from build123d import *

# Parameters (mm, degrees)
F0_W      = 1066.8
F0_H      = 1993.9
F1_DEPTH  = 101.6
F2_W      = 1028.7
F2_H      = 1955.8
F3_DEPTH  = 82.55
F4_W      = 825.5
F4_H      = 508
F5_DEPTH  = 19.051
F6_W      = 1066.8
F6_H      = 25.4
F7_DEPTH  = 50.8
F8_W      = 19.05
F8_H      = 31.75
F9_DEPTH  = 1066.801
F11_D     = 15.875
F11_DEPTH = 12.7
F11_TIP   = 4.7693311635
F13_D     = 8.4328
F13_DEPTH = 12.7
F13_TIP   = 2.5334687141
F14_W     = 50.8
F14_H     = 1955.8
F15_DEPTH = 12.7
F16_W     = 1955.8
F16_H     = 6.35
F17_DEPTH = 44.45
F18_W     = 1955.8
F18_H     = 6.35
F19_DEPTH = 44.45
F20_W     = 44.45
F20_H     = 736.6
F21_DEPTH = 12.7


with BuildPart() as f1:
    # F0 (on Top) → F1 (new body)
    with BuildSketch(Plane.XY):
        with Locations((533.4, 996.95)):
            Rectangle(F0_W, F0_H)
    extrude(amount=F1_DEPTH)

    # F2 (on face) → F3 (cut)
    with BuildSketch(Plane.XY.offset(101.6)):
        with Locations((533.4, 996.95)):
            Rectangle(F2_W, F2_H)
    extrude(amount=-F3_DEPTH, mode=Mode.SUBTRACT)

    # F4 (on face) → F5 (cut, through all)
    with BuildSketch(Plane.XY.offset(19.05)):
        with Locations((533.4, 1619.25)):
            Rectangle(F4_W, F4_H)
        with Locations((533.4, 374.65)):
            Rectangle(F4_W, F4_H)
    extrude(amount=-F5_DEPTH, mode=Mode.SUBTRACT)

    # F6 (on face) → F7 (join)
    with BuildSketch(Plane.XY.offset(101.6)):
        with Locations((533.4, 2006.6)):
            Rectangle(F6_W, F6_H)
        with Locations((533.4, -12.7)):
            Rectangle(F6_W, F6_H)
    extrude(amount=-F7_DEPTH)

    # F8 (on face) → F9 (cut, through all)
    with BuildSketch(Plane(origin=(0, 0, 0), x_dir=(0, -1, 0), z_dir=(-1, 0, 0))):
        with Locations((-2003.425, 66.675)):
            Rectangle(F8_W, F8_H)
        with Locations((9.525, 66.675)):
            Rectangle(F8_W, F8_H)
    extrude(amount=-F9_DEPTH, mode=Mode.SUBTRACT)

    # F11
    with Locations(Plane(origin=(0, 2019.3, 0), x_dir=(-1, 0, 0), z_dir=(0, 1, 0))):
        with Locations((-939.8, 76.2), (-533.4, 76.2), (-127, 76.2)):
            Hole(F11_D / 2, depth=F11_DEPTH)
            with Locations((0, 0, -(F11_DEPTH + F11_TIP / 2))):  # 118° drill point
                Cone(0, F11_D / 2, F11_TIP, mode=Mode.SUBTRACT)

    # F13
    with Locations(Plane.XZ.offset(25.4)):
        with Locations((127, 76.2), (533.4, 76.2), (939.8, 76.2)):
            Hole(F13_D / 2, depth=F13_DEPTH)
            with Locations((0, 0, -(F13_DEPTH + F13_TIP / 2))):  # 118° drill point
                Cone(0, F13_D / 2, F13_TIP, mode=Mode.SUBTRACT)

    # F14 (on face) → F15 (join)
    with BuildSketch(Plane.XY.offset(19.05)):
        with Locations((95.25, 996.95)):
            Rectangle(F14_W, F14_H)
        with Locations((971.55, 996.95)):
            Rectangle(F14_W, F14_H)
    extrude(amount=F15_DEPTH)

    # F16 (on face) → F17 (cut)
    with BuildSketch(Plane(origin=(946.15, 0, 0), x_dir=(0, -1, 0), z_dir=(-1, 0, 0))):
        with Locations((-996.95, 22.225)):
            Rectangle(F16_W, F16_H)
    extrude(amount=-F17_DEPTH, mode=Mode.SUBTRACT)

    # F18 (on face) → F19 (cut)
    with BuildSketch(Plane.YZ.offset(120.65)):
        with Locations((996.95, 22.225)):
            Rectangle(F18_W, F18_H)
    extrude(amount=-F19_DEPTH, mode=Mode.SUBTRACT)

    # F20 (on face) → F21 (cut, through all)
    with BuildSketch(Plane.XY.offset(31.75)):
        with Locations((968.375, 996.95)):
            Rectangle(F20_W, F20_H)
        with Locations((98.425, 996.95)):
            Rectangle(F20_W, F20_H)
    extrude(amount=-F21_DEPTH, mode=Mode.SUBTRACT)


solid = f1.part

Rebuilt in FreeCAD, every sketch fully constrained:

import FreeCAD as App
import Part
import Sketcher
from FreeCAD import Vector
Q = App.Units.Quantity


def add_polygon(sketch, points):
    """Adds a closed chain of lines whose ends are joined by coincident constraints."""
    first, n = sketch.GeometryCount, len(points)
    for a, b in zip(points, points[1:] + points[:1]):
        sketch.addGeometry(Part.LineSegment(App.Vector(*a, 0), App.Vector(*b, 0)), False)
    for i in range(n):
        sketch.addConstraint(Sketcher.Constraint("Coincident", first + i, 2, first + (i + 1) % n, 1))

doc = App.newDocument("Part")
params = doc.addObject("Spreadsheet::Sheet", "Params")
for row, (alias, value) in enumerate([
    ("sketch1_width", "42 in"),
    ("sketch1_height", "78.5 in"),
    ("pad1_length", "4 in"),
    ("sketch2_height", "77 in"),
    ("sketch2_width", "40.5 in"),
    ("pocket1_length", "3.25 in"),
    ("sketch3_height", "20 in"),
    ("sketch3_width", "32.5 in"),
    ("sketch4_width", "42 in"),
    ("sketch4_height", "1 in"),
    ("pad2_length", "2 in"),
    ("sketch5_width", "0.75 in"),
    ("sketch5_height", "1.25 in"),
    ("sketch6_diameter", "0.625 in"),
    ("hole_diameter", "0.625 in"),
    ("hole_depth", "0.5 in"),
    ("sketch7_diameter", "0.332 in"),
    ("hole2_diameter", "0.332 in"),
    ("hole2_depth", "0.5 in"),
    ("sketch8_width", "2 in"),
    ("sketch8_height", "77 in"),
    ("pad3_length", "0.5 in"),
    ("sketch9_width", "77 in"),
    ("sketch9_height", "0.25 in"),
    ("pocket4_length", "1.75 in"),
    ("sketch10_width", "77 in"),
    ("sketch10_height", "0.25 in"),
    ("pocket5_length", "1.75 in"),
    ("sketch11_height", "29 in"),
    ("sketch11_width", "1.75 in"),
    ("pocket6_length", "0.5 in"),
], start=1):
    params.set(f"A{row}", alias)
    params.set(f"B{row}", "=" + value)
    params.setAlias(f"B{row}", alias)

body = doc.addObject("PartDesign::Body", "Body")

# Sketch on XY plane
sketch1 = body.newObject("Sketcher::SketchObject", "Sketch")
sketch1.AttachmentSupport = (doc.getObject("XY_Plane"), [""])
sketch1.MapMode = "FlatFace"
add_polygon(sketch1, [(0, 1994), (0, 0), (1067, 0), (1067, 1994)])  # lines 0-3
sketch1.addConstraint([
    Sketcher.Constraint("Vertical", 0),
    Sketcher.Constraint("Horizontal", 1),
    Sketcher.Constraint("Vertical", 2),
    Sketcher.Constraint("Horizontal", 3),
    Sketcher.Constraint("Coincident", 0, 2, -1, 1),
    Sketcher.Constraint("DistanceX", 1, 1, 1, 2, Q("42 in")),
    Sketcher.Constraint("DistanceY", 0, 2, 0, 1, Q("78.5 in")),
])
sketch1.setExpression("Constraints[9]", "Params.sketch1_width")
sketch1.setExpression("Constraints[10]", "Params.sketch1_height")
pad1 = body.newObject("PartDesign::Pad", "Pad")
pad1.Profile = sketch1
pad1.setExpression("Length", "Params.pad1_length")

# Sketch on XY plane
sketch2 = body.newObject("Sketcher::SketchObject", "Sketch001")
sketch2.AttachmentSupport = (doc.getObject("XY_Plane"), [""])
sketch2.MapMode = "FlatFace"
sketch2.AttachmentOffset = App.Placement(Vector(0, 0, 4 * 25.4), App.Rotation())
add_polygon(sketch2, [(19, 1975), (19, 19), (1048, 19), (1048, 1975)])  # lines 0-3
sketch2.addConstraint([
    Sketcher.Constraint("Vertical", 0),
    Sketcher.Constraint("Horizontal", 1),
    Sketcher.Constraint("Vertical", 2),
    Sketcher.Constraint("Horizontal", 3),
    Sketcher.Constraint("DistanceY", 0, 2, 0, 1, Q("77 in")),
    Sketcher.Constraint("DistanceX", 1, 1, 1, 2, Q("40.5 in")),
    Sketcher.Constraint("DistanceX", -1, 1, 0, 2, Q("0.75 in")),
    Sketcher.Constraint("DistanceY", -1, 1, 0, 2, Q("0.75 in")),
])
sketch2.setExpression("Constraints[8]", "Params.sketch2_height")
sketch2.setExpression("Constraints[9]", "Params.sketch2_width")
pocket1 = body.newObject("PartDesign::Pocket", "Pocket")
pocket1.Profile = sketch2
pocket1.setExpression("Length", "Params.pocket1_length")

# Sketch on XY plane
sketch3 = body.newObject("Sketcher::SketchObject", "Sketch002")
sketch3.AttachmentSupport = (doc.getObject("XY_Plane"), [""])
sketch3.MapMode = "FlatFace"
sketch3.AttachmentOffset = App.Placement(Vector(0, 0, 0.75 * 25.4), App.Rotation())
add_polygon(sketch3, [(121, 1873), (121, 1365), (946, 1365), (946, 1873)])  # lines 0-3
add_polygon(sketch3, [(121, 629), (121, 121), (946, 121), (946, 629)])  # lines 4-7
sketch3.addConstraint([
    Sketcher.Constraint("Vertical", 0),
    Sketcher.Constraint("Horizontal", 1),
    Sketcher.Constraint("Vertical", 2),
    Sketcher.Constraint("Horizontal", 3),
    Sketcher.Constraint("Vertical", 4),
    Sketcher.Constraint("Horizontal", 5),
    Sketcher.Constraint("Vertical", 6),
    Sketcher.Constraint("Horizontal", 7),
    Sketcher.Constraint("Vertical", 3, 2, 4, 2),
    Sketcher.Constraint("Vertical", 2, 2, 5, 2),
    Sketcher.Constraint("Equal", 2, 4),
    Sketcher.Constraint("DistanceY", 0, 2, 0, 1, Q("20 in")),
    Sketcher.Constraint("DistanceX", 1, 1, 1, 2, Q("32.5 in")),
    Sketcher.Constraint("DistanceY", 4, 2, 0, 2, Q("49 in")),
    Sketcher.Constraint("DistanceX", -1, 1, 0, 2, Q("4.75 in")),
    Sketcher.Constraint("DistanceY", -1, 1, 0, 2, Q("53.75 in")),
])
sketch3.setExpression("Constraints[19]", "Params.sketch3_height")
sketch3.setExpression("Constraints[20]", "Params.sketch3_width")
pocket2 = body.newObject("PartDesign::Pocket", "Pocket001")
pocket2.Profile = sketch3
pocket2.Type = "ThroughAll"

# Sketch on XY plane
sketch4 = body.newObject("Sketcher::SketchObject", "Sketch003")
sketch4.AttachmentSupport = (doc.getObject("XY_Plane"), [""])
sketch4.MapMode = "FlatFace"
sketch4.AttachmentOffset = App.Placement(Vector(0, 0, 4 * 25.4), App.Rotation())
add_polygon(sketch4, [(0, 2019), (0, 1994), (1067, 1994), (1067, 2019)])  # lines 0-3
add_polygon(sketch4, [(0, 0), (0, -25), (1067, -25), (1067, 0)])  # lines 4-7
sketch4.addConstraint([
    Sketcher.Constraint("Vertical", 0),
    Sketcher.Constraint("Horizontal", 1),
    Sketcher.Constraint("Vertical", 2),
    Sketcher.Constraint("Horizontal", 3),
    Sketcher.Constraint("Vertical", 4),
    Sketcher.Constraint("Horizontal", 5),
    Sketcher.Constraint("Vertical", 6),
    Sketcher.Constraint("Horizontal", 7),
    Sketcher.Constraint("Coincident", 7, 2, -1, 1),
    Sketcher.Constraint("PointOnObject", 0, 2, -2),
    Sketcher.Constraint("Vertical", 2, 2, 5, 2),
    Sketcher.Constraint("Equal", 2, 4),
    Sketcher.Constraint("DistanceX", 1, 1, 1, 2, Q("42 in")),
    Sketcher.Constraint("DistanceY", 0, 2, 0, 1, Q("1 in")),
    Sketcher.Constraint("DistanceY", -1, 1, 0, 2, Q("78.5 in")),
])
sketch4.setExpression("Constraints[20]", "Params.sketch4_width")
sketch4.setExpression("Constraints[21]", "Params.sketch4_height")
pad2 = body.newObject("PartDesign::Pad", "Pad001")
pad2.Profile = sketch4
pad2.setExpression("Length", "Params.pad2_length")
pad2.Reversed = True

# Sketch on YZ plane
sketch5 = body.newObject("Sketcher::SketchObject", "Sketch004")
sketch5.AttachmentSupport = (doc.getObject("YZ_Plane"), [""])
sketch5.MapMode = "FlatFace"
add_polygon(sketch5, [(2013, 83), (2013, 51), (1994, 51), (1994, 83)])  # lines 0-3
add_polygon(sketch5, [(0, 83), (0, 51), (-19, 51), (-19, 83)])  # lines 4-7
sketch5.addConstraint([
    Sketcher.Constraint("Vertical", 0),
    Sketcher.Constraint("Horizontal", 1),
    Sketcher.Constraint("Vertical", 2),
    Sketcher.Constraint("Horizontal", 3),
    Sketcher.Constraint("Vertical", 4),
    Sketcher.Constraint("Horizontal", 5),
    Sketcher.Constraint("Vertical", 6),
    Sketcher.Constraint("Horizontal", 7),
    Sketcher.Constraint("PointOnObject", 4, 2, -2),
    Sketcher.Constraint("Horizontal", 1, 2, 4, 2),
    Sketcher.Constraint("Horizontal", 3, 2, 6, 2),
    Sketcher.Constraint("Equal", 3, 5),
    Sketcher.Constraint("DistanceY", -1, 1, 0, 2, Q("2 in")),
    Sketcher.Constraint("DistanceX", 5, 2, 0, 2, Q("80 in")),
    Sketcher.Constraint("DistanceX", 1, 2, 1, 1, Q("0.75 in")),
    Sketcher.Constraint("DistanceY", 0, 2, 0, 1, Q("1.25 in")),
])
sketch5.setExpression("Constraints[22]", "Params.sketch5_width")
sketch5.setExpression("Constraints[23]", "Params.sketch5_height")
pocket3 = body.newObject("PartDesign::Pocket", "Pocket002")
pocket3.Profile = sketch5
pocket3.Type = "ThroughAll"
pocket3.Reversed = True

# Sketch on XZ plane
sketch6 = body.newObject("Sketcher::SketchObject", "Sketch005")
sketch6.AttachmentSupport = (doc.getObject("XZ_Plane"), [""])
sketch6.MapMode = "FlatFace"
sketch6.AttachmentOffset = App.Placement(Vector(0, 0, -79.5 * 25.4), App.Rotation())
sketch6.addGeometry([
    Part.Circle(Vector(940, 76, 0), Vector(0, 0, 1), 8),
    Part.Circle(Vector(533, 76, 0), Vector(0, 0, 1), 8),
    Part.Circle(Vector(127, 76, 0), Vector(0, 0, 1), 8),
], False)
sketch6.addConstraint([
    Sketcher.Constraint("Equal", 0, 1),
    Sketcher.Constraint("Equal", 1, 2),
    Sketcher.Constraint("Horizontal", 0, 3, 1, 3),
    Sketcher.Constraint("Horizontal", 1, 3, 2, 3),
    Sketcher.Constraint("Diameter", 0, Q("0.625 in")),
    Sketcher.Constraint("DistanceX", -1, 1, 0, 3, Q("37 in")),
    Sketcher.Constraint("DistanceY", -1, 1, 0, 3, Q("3 in")),
    Sketcher.Constraint("DistanceX", -1, 1, 1, 3, Q("21 in")),
    Sketcher.Constraint("DistanceX", -1, 1, 2, 3, Q("5 in")),
])
sketch6.setExpression("Constraints[4]", "Params.sketch6_diameter")
doc.recompute()
hole = body.newObject("PartDesign::Hole", "Hole")
hole.Profile = sketch6
hole.ThreadType = "None"
hole.setExpression("Diameter", "Params.hole_diameter")
hole.DepthType = "Dimension"
hole.setExpression("Depth", "Params.hole_depth")
hole.DrillPoint = "Angled"
hole.DrillPointAngle = 118
hole.Reversed = True

# Sketch on XZ plane
sketch7 = body.newObject("Sketcher::SketchObject", "Sketch006")
sketch7.AttachmentSupport = (doc.getObject("XZ_Plane"), [""])
sketch7.MapMode = "FlatFace"
sketch7.AttachmentOffset = App.Placement(Vector(0, 0, 1 * 25.4), App.Rotation())
sketch7.addGeometry([
    Part.Circle(Vector(127, 76.2, 0), Vector(0, 0, 1), 4.2),
    Part.Circle(Vector(533.4, 76.2, 0), Vector(0, 0, 1), 4.2),
    Part.Circle(Vector(939.8, 76.2, 0), Vector(0, 0, 1), 4.2),
], False)
sketch7.addConstraint([
    Sketcher.Constraint("Equal", 0, 1),
    Sketcher.Constraint("Equal", 1, 2),
    Sketcher.Constraint("Horizontal", 0, 3, 1, 3),
    Sketcher.Constraint("Horizontal", 1, 3, 2, 3),
    Sketcher.Constraint("Diameter", 0, Q("0.332 in")),
    Sketcher.Constraint("DistanceX", -1, 1, 0, 3, Q("5 in")),
    Sketcher.Constraint("DistanceY", -1, 1, 0, 3, Q("3 in")),
    Sketcher.Constraint("DistanceX", -1, 1, 1, 3, Q("21 in")),
    Sketcher.Constraint("DistanceX", -1, 1, 2, 3, Q("37 in")),
])
sketch7.setExpression("Constraints[4]", "Params.sketch7_diameter")
doc.recompute()
hole2 = body.newObject("PartDesign::Hole", "Hole001")
hole2.Profile = sketch7
hole2.ThreadType = "None"
hole2.setExpression("Diameter", "Params.hole2_diameter")
hole2.DepthType = "Dimension"
hole2.setExpression("Depth", "Params.hole2_depth")
hole2.DrillPoint = "Angled"
hole2.DrillPointAngle = 118

# Sketch on XY plane
sketch8 = body.newObject("Sketcher::SketchObject", "Sketch007")
sketch8.AttachmentSupport = (doc.getObject("XY_Plane"), [""])
sketch8.MapMode = "FlatFace"
sketch8.AttachmentOffset = App.Placement(Vector(0, 0, 0.75 * 25.4), App.Rotation())
add_polygon(sketch8, [(70, 1975), (70, 19), (121, 19), (121, 1975)])  # lines 0-3
add_polygon(sketch8, [(946, 1975), (946, 19), (997, 19), (997, 1975)])  # lines 4-7
sketch8.addConstraint([
    Sketcher.Constraint("Vertical", 0),
    Sketcher.Constraint("Horizontal", 1),
    Sketcher.Constraint("Vertical", 2),
    Sketcher.Constraint("Horizontal", 3),
    Sketcher.Constraint("Vertical", 4),
    Sketcher.Constraint("Horizontal", 5),
    Sketcher.Constraint("Vertical", 6),
    Sketcher.Constraint("Horizontal", 7),
    Sketcher.Constraint("Horizontal", 1, 2, 4, 2),
    Sketcher.Constraint("Horizontal", 3, 2, 6, 2),
    Sketcher.Constraint("Equal", 3, 5),
    Sketcher.Constraint("DistanceX", 1, 1, 1, 2, Q("2 in")),
    Sketcher.Constraint("DistanceY", 0, 2, 0, 1, Q("77 in")),
    Sketcher.Constraint("DistanceX", 1, 2, 4, 2, Q("32.5 in")),
    Sketcher.Constraint("DistanceX", -1, 1, 0, 2, Q("2.75 in")),
    Sketcher.Constraint("DistanceY", -1, 1, 0, 2, Q("0.75 in")),
])
sketch8.setExpression("Constraints[19]", "Params.sketch8_width")
sketch8.setExpression("Constraints[20]", "Params.sketch8_height")
pad3 = body.newObject("PartDesign::Pad", "Pad002")
pad3.Profile = sketch8
pad3.setExpression("Length", "Params.pad3_length")

# Sketch on YZ plane
sketch9 = body.newObject("Sketcher::SketchObject", "Sketch008")
sketch9.AttachmentSupport = (doc.getObject("YZ_Plane"), [""])
sketch9.MapMode = "FlatFace"
sketch9.AttachmentOffset = App.Placement(Vector(0, 0, 37.25 * 25.4), App.Rotation())
add_polygon(sketch9, [(1975, 25), (1975, 19), (19, 19), (19, 25)])  # lines 0-3
sketch9.addConstraint([
    Sketcher.Constraint("Vertical", 0),
    Sketcher.Constraint("Horizontal", 1),
    Sketcher.Constraint("Vertical", 2),
    Sketcher.Constraint("Horizontal", 3),
    Sketcher.Constraint("DistanceX", 1, 2, 1, 1, Q("77 in")),
    Sketcher.Constraint("DistanceY", -1, 1, 2, 2, Q("1 in")),
    Sketcher.Constraint("DistanceY", 0, 2, 0, 1, Q("0.25 in")),
    Sketcher.Constraint("DistanceX", -1, 1, 0, 2, Q("77.75 in")),
])
sketch9.setExpression("Constraints[8]", "Params.sketch9_width")
sketch9.setExpression("Constraints[10]", "Params.sketch9_height")
pocket4 = body.newObject("PartDesign::Pocket", "Pocket003")
pocket4.Profile = sketch9
pocket4.setExpression("Length", "Params.pocket4_length")
pocket4.Reversed = True

# Sketch on YZ plane
sketch10 = body.newObject("Sketcher::SketchObject", "Sketch009")
sketch10.AttachmentSupport = (doc.getObject("YZ_Plane"), [""])
sketch10.MapMode = "FlatFace"
sketch10.AttachmentOffset = App.Placement(Vector(0, 0, 4.75 * 25.4), App.Rotation())
add_polygon(sketch10, [(19, 25), (19, 19), (1975, 19), (1975, 25)])  # lines 0-3
sketch10.addConstraint([
    Sketcher.Constraint("Vertical", 0),
    Sketcher.Constraint("Horizontal", 1),
    Sketcher.Constraint("Vertical", 2),
    Sketcher.Constraint("Horizontal", 3),
    Sketcher.Constraint("DistanceX", 1, 1, 1, 2, Q("77 in")),
    Sketcher.Constraint("DistanceY", -1, 1, 2, 2, Q("1 in")),
    Sketcher.Constraint("DistanceY", 0, 2, 0, 1, Q("0.25 in")),
    Sketcher.Constraint("DistanceX", -1, 1, 0, 2, Q("0.75 in")),
])
sketch10.setExpression("Constraints[8]", "Params.sketch10_width")
sketch10.setExpression("Constraints[10]", "Params.sketch10_height")
pocket5 = body.newObject("PartDesign::Pocket", "Pocket004")
pocket5.Profile = sketch10
pocket5.setExpression("Length", "Params.pocket5_length")

# Sketch on XY plane
sketch11 = body.newObject("Sketcher::SketchObject", "Sketch010")
sketch11.AttachmentSupport = (doc.getObject("XY_Plane"), [""])
sketch11.MapMode = "FlatFace"
sketch11.AttachmentOffset = App.Placement(Vector(0, 0, 1.25 * 25.4), App.Rotation())
add_polygon(sketch11, [(946, 1365), (946, 629), (991, 629), (991, 1365)])  # lines 0-3
add_polygon(sketch11, [(76, 1365), (76, 629), (121, 629), (121, 1365)])  # lines 4-7
sketch11.addConstraint([
    Sketcher.Constraint("Vertical", 0),
    Sketcher.Constraint("Horizontal", 1),
    Sketcher.Constraint("Vertical", 2),
    Sketcher.Constraint("Horizontal", 3),
    Sketcher.Constraint("Vertical", 4),
    Sketcher.Constraint("Horizontal", 5),
    Sketcher.Constraint("Vertical", 6),
    Sketcher.Constraint("Horizontal", 7),
    Sketcher.Constraint("Horizontal", 1, 2, 4, 2),
    Sketcher.Constraint("Horizontal", 3, 2, 6, 2),
    Sketcher.Constraint("Equal", 3, 5),
    Sketcher.Constraint("DistanceY", 0, 2, 0, 1, Q("29 in")),
    Sketcher.Constraint("DistanceX", -1, 1, 1, 2, Q("39 in")),
    Sketcher.Constraint("DistanceX", -1, 1, 4, 2, Q("3 in")),
    Sketcher.Constraint("DistanceX", 1, 1, 1, 2, Q("1.75 in")),
    Sketcher.Constraint("DistanceY", -1, 1, 0, 2, Q("24.75 in")),
])
sketch11.setExpression("Constraints[19]", "Params.sketch11_height")
sketch11.setExpression("Constraints[22]", "Params.sketch11_width")
pocket6 = body.newObject("PartDesign::Pocket", "Pocket005")
pocket6.Profile = sketch11
pocket6.setExpression("Length", "Params.pocket6_length")

doc.recompute()
